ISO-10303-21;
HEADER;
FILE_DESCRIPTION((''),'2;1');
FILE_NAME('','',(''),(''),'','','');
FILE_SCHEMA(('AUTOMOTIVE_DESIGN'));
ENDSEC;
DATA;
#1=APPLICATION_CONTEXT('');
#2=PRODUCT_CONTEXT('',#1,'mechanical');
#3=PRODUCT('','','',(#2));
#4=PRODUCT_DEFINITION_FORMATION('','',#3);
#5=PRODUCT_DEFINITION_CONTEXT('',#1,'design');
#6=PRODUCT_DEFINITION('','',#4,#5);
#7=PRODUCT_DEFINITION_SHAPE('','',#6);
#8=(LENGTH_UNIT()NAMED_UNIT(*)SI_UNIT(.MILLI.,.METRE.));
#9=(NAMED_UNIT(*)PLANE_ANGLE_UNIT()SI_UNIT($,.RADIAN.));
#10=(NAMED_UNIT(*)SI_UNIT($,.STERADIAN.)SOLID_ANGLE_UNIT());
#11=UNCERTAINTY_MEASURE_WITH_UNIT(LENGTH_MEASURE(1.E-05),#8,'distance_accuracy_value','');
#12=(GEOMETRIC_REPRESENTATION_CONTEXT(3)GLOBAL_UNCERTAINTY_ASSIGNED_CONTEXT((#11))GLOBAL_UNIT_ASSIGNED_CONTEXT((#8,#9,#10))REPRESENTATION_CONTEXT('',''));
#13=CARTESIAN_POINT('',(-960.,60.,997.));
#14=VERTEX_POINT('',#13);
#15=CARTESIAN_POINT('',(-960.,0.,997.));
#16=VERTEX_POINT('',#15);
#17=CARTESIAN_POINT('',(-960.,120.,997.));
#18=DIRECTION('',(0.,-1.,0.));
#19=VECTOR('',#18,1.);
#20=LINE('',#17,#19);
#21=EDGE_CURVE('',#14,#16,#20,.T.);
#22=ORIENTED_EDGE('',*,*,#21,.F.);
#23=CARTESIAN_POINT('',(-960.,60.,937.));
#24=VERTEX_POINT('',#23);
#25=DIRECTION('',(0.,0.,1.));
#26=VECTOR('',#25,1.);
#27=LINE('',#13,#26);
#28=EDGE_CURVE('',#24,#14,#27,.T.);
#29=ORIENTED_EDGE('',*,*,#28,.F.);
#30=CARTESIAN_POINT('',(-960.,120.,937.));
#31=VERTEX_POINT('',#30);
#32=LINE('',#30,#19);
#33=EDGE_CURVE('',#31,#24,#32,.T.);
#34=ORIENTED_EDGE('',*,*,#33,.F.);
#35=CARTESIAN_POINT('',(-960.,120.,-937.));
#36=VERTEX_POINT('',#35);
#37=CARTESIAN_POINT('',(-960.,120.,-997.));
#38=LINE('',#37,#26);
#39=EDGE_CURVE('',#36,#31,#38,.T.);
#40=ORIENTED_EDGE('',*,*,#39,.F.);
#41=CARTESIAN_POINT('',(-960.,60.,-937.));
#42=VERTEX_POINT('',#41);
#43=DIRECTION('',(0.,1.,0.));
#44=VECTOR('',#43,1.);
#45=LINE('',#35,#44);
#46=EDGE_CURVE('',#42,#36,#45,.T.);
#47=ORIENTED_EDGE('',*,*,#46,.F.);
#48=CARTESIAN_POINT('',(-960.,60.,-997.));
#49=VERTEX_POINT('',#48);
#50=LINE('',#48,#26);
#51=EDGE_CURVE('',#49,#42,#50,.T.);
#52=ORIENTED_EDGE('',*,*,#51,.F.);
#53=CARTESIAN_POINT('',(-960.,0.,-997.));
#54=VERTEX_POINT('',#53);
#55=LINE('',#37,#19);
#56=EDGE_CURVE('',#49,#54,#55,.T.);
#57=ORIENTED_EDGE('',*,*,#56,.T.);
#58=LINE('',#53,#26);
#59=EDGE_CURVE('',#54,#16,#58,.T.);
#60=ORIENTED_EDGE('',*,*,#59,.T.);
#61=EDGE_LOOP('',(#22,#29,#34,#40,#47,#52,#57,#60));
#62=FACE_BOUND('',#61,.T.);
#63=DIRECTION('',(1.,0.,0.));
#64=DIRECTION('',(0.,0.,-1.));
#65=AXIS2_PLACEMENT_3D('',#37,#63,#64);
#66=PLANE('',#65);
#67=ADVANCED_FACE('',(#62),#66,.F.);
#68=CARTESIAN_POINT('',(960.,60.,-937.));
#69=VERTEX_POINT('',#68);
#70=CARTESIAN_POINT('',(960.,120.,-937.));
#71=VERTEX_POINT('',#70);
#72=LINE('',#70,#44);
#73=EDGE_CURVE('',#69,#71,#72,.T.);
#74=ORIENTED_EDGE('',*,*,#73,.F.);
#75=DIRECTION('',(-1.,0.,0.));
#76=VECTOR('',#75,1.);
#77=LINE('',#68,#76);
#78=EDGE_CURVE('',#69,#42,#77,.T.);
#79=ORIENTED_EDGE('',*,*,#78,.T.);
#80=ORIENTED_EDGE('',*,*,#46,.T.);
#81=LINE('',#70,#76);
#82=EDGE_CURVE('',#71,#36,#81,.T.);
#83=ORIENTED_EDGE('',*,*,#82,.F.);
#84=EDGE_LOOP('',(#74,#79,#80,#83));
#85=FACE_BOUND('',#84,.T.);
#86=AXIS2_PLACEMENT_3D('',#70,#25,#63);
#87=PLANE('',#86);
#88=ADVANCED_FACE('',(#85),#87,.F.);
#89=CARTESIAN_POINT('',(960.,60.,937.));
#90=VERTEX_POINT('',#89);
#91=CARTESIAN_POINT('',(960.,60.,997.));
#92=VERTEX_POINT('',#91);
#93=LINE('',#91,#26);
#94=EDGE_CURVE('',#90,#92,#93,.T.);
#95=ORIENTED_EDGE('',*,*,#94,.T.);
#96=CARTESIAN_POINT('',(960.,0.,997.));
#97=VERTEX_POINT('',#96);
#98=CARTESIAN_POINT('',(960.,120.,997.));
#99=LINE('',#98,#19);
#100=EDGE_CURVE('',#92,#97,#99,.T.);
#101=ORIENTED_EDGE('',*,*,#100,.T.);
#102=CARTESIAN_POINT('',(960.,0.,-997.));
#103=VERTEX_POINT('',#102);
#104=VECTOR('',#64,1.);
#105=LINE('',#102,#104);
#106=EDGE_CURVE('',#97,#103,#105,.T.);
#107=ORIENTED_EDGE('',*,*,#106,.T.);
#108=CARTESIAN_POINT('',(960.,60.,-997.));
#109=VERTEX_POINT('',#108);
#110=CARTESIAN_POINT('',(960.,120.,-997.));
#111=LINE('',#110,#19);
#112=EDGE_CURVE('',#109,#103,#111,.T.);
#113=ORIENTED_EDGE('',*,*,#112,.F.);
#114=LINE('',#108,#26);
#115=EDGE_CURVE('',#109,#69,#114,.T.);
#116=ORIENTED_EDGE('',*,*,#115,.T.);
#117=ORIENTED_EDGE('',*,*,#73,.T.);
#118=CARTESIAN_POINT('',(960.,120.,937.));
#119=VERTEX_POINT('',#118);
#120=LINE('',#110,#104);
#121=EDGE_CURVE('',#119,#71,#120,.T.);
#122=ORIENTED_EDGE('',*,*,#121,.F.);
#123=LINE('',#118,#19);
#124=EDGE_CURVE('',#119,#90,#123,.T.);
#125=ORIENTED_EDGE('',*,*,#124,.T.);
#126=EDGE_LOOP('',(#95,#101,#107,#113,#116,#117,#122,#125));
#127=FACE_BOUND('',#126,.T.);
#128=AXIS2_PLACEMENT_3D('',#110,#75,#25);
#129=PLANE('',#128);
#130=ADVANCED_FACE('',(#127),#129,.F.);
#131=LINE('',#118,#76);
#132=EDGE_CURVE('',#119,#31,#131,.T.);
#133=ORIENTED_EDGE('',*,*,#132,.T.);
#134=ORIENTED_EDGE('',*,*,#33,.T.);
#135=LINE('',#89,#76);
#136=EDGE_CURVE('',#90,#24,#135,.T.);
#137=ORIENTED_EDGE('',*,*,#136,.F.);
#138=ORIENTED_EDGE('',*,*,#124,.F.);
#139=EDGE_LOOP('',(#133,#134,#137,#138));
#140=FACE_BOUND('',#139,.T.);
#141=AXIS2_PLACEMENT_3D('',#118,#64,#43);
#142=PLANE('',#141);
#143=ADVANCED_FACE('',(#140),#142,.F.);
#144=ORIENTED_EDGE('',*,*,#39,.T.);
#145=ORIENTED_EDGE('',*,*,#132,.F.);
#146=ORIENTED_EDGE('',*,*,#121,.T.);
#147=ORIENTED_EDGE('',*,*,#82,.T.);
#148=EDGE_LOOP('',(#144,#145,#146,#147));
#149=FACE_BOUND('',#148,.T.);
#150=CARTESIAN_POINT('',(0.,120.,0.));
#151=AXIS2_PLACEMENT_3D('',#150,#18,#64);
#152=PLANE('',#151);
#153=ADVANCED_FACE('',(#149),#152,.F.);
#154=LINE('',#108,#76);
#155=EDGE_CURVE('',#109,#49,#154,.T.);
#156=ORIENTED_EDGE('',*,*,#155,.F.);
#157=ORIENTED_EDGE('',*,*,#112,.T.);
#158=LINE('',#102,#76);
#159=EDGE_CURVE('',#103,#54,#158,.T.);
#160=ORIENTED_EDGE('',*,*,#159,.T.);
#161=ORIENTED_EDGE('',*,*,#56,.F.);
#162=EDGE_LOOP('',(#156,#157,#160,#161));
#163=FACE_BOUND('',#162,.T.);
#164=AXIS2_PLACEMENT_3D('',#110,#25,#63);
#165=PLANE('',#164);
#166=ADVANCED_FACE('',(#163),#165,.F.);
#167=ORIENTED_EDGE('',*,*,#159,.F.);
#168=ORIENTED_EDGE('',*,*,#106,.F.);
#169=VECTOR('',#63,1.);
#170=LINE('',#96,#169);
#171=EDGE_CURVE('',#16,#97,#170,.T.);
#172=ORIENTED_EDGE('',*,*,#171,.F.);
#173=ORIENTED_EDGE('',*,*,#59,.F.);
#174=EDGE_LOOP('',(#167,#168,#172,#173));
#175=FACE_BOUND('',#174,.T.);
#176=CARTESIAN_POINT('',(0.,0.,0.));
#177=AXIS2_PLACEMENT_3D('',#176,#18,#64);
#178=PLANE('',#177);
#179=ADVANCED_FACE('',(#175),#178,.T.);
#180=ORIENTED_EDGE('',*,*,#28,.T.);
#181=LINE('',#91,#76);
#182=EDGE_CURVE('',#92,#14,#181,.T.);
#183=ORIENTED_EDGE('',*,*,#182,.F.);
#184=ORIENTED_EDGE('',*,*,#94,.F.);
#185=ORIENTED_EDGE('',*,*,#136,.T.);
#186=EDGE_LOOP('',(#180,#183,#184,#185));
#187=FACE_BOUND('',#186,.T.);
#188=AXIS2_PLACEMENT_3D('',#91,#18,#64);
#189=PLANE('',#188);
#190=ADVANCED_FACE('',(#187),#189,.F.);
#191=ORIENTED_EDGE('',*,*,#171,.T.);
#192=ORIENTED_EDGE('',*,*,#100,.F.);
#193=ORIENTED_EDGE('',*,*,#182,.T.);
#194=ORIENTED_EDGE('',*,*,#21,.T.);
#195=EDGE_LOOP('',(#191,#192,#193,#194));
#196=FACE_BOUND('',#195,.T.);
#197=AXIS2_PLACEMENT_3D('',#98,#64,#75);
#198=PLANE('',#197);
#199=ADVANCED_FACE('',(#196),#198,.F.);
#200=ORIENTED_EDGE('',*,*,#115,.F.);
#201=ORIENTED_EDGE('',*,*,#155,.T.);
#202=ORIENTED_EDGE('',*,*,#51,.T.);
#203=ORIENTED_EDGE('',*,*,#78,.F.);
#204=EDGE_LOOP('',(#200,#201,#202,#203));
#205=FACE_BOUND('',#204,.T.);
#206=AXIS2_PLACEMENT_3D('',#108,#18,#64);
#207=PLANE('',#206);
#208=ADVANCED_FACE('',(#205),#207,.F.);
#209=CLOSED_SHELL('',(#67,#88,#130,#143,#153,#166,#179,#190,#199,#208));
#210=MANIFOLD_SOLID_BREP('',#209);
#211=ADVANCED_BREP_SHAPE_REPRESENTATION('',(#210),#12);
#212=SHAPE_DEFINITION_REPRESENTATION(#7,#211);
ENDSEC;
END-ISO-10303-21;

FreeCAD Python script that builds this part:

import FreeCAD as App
import Part
import Sketcher
from FreeCAD import Vector
Q = App.Units.Quantity


def add_polygon(sketch, points):
    """Adds a closed chain of lines whose ends are joined by coincident constraints."""
    first, n = sketch.GeometryCount, len(points)
    for a, b in zip(points, points[1:] + points[:1]):
        sketch.addGeometry(Part.LineSegment(App.Vector(*a, 0), App.Vector(*b, 0)), False)
    for i in range(n):
        sketch.addConstraint(Sketcher.Constraint("Coincident", first + i, 2, first + (i + 1) % n, 1))

doc = App.newDocument("Part")
body = doc.addObject("PartDesign::Body", "Body")

sketch1 = body.newObject("Sketcher::SketchObject", "Sketch")
sketch1.AttachmentSupport = (doc.getObject("XZ_Plane"), [""])
sketch1.MapMode = "FlatFace"
add_polygon(sketch1, [(-960, -997), (-960, 997), (960, 997), (960, -997)])
sketch1.addConstraint(Sketcher.Constraint("Vertical", 0))
sketch1.addConstraint(Sketcher.Constraint("Horizontal", 1))
sketch1.addConstraint(Sketcher.Constraint("Vertical", 2))
sketch1.addConstraint(Sketcher.Constraint("Horizontal", 3))
sketch1.addConstraint(Sketcher.Constraint("Symmetric", 0, 2, 2, 2, -1, 1))
sketch1.addConstraint(Sketcher.Constraint("DistanceX", 1, 1, 1, 2, Q("1920 mm")))
sketch1.addConstraint(Sketcher.Constraint("DistanceY", 0, 1, 0, 2, Q("1994 mm")))
pad1 = body.newObject("PartDesign::Pad", "Pad")
pad1.Profile = sketch1
pad1.Length = 120
pad1.Reversed = True

sketch2 = body.newObject("Sketcher::SketchObject", "Sketch001")
sketch2.AttachmentSupport = (doc.getObject("YZ_Plane"), [""])
sketch2.MapMode = "FlatFace"
sketch2.AttachmentOffset = App.Placement(Vector(0, 0, -960), App.Rotation())
add_polygon(sketch2, [(120, -997), (60, -997), (60, -937), (120, -937)])
add_polygon(sketch2, [(120, 937), (60, 937), (60, 997), (120, 997)])
sketch2.addConstraint(Sketcher.Constraint("Horizontal", 0))
sketch2.addConstraint(Sketcher.Constraint("Vertical", 1))
sketch2.addConstraint(Sketcher.Constraint("Horizontal", 2))
sketch2.addConstraint(Sketcher.Constraint("Vertical", 3))
sketch2.addConstraint(Sketcher.Constraint("Horizontal", 4))
sketch2.addConstraint(Sketcher.Constraint("Vertical", 5))
sketch2.addConstraint(Sketcher.Constraint("Horizontal", 6))
sketch2.addConstraint(Sketcher.Constraint("Vertical", 7))
sketch2.addConstraint(Sketcher.Constraint("Symmetric", 1, 2, 4, 2, -1))
sketch2.addConstraint(Sketcher.Constraint("Symmetric", 3, 2, 6, 2, -1))
sketch2.addConstraint(Sketcher.Constraint("Equal", 6, 1))
sketch2.addConstraint(Sketcher.Constraint("DistanceX", 0, 2, 0, 1, Q("60 mm")))
sketch2.addConstraint(Sketcher.Constraint("DistanceX", -1, 1, 0, 2, Q("60 mm")))
sketch2.addConstraint(Sketcher.Constraint("DistanceY", 0, 2, -1, 1, Q("997 mm")))
pocket1 = body.newObject("PartDesign::Pocket", "Pocket")
pocket1.Profile = sketch2
pocket1.Type = "ThroughAll"
pocket1.Reversed = True

doc.recompute()
